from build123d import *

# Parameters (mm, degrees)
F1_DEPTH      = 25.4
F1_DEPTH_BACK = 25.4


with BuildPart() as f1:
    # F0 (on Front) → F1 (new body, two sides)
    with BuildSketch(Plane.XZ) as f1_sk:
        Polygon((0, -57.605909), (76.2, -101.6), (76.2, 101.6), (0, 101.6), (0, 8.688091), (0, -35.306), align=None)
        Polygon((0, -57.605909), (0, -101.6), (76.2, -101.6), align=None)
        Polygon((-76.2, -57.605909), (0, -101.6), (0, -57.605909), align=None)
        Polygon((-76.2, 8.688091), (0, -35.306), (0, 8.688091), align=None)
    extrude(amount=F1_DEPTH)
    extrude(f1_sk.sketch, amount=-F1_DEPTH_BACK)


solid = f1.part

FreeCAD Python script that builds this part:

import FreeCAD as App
import Part
import Sketcher
Q = App.Units.Quantity

doc = App.newDocument("Part")
body = doc.addObject("PartDesign::Body", "Body")

# Sketch on XZ plane
sketch1 = body.newObject("Sketcher::SketchObject", "Sketch")
sketch1.AttachmentSupport = (doc.getObject("XZ_Plane"), [""])
sketch1.MapMode = "FlatFace"
sketch1.addGeometry(Part.LineSegment(App.Vector(76, -102, 0), App.Vector(76, 102, 0)), False)
sketch1.addGeometry(Part.LineSegment(App.Vector(76, 102, 0), App.Vector(0, 102, 0)), False)
sketch1.addGeometry(Part.LineSegment(App.Vector(0, 102, 0), App.Vector(0, 9, 0)), False)
sketch1.addGeometry(Part.LineSegment(App.Vector(0, 9, 0), App.Vector(-76, 9, 0)), False)
sketch1.addGeometry(Part.LineSegment(App.Vector(-76, 9, 0), App.Vector(0, -35, 0)), False)
sketch1.addGeometry(Part.LineSegment(App.Vector(0, -35, 0), App.Vector(0, -58, 0)), False)
sketch1.addGeometry(Part.LineSegment(App.Vector(0, -58, 0), App.Vector(-76, -58, 0)), False)
sketch1.addGeometry(Part.LineSegment(App.Vector(-76, -58, 0), App.Vector(0, -102, 0)), False)
sketch1.addGeometry(Part.LineSegment(App.Vector(0, -102, 0), App.Vector(76, -102, 0)), False)
sketch1.addConstraint(Sketcher.Constraint("Coincident", 0, 2, 1, 1))
sketch1.addConstraint(Sketcher.Constraint("Coincident", 1, 2, 2, 1))
sketch1.addConstraint(Sketcher.Constraint("Coincident", 2, 2, 3, 1))
sketch1.addConstraint(Sketcher.Constraint("Coincident", 3, 2, 4, 1))
sketch1.addConstraint(Sketcher.Constraint("Coincident", 4, 2, 5, 1))
sketch1.addConstraint(Sketcher.Constraint("Coincident", 5, 2, 6, 1))
sketch1.addConstraint(Sketcher.Constraint("Coincident", 6, 2, 7, 1))
sketch1.addConstraint(Sketcher.Constraint("Coincident", 7, 2, 8, 1))
sketch1.addConstraint(Sketcher.Constraint("Coincident", 8, 2, 0, 1))
sketch1.addConstraint(Sketcher.Constraint("Vertical", 0))
sketch1.addConstraint(Sketcher.Constraint("Horizontal", 1))
sketch1.addConstraint(Sketcher.Constraint("Vertical", 2))
sketch1.addConstraint(Sketcher.Constraint("Horizontal", 3))
sketch1.addConstraint(Sketcher.Constraint("Vertical", 5))
sketch1.addConstraint(Sketcher.Constraint("Horizontal", 6))
sketch1.addConstraint(Sketcher.Constraint("Horizontal", 8))
sketch1.addConstraint(Sketcher.Constraint("Symmetric", 1, 2, 7, 2, -1, 1))
sketch1.addConstraint(Sketcher.Constraint("PointOnObject", 1, 2, -2))
sketch1.addConstraint(Sketcher.Constraint("PointOnObject", 4, 2, -2))
sketch1.addConstraint(Sketcher.Constraint("Parallel", 4, 7))
sketch1.addConstraint(Sketcher.Constraint("Vertical", 3, 2, 6, 2))
sketch1.addConstraint(Sketcher.Constraint("Equal", 1, 3))
sketch1.addConstraint(Sketcher.Constraint("DistanceX", 1, 2, 1, 1, Q("3 in")))
sketch1.addConstraint(Sketcher.Constraint("DistanceY", 0, 1, 0, 2, Q("8 in")))
sketch1.addConstraint(Sketcher.Constraint("Angle", 4, Q("-30 deg")))
sketch1.addConstraint(Sketcher.Constraint("DistanceY", 4, 2, -1, 1, Q("1.39 in")))
pad1 = body.newObject("PartDesign::Pad", "Pad")
pad1.Profile = sketch1
pad1.Type = "TwoLengths"
pad1.Length = Q("1 in")
pad1.Length2 = Q("1 in")

doc.recompute()
